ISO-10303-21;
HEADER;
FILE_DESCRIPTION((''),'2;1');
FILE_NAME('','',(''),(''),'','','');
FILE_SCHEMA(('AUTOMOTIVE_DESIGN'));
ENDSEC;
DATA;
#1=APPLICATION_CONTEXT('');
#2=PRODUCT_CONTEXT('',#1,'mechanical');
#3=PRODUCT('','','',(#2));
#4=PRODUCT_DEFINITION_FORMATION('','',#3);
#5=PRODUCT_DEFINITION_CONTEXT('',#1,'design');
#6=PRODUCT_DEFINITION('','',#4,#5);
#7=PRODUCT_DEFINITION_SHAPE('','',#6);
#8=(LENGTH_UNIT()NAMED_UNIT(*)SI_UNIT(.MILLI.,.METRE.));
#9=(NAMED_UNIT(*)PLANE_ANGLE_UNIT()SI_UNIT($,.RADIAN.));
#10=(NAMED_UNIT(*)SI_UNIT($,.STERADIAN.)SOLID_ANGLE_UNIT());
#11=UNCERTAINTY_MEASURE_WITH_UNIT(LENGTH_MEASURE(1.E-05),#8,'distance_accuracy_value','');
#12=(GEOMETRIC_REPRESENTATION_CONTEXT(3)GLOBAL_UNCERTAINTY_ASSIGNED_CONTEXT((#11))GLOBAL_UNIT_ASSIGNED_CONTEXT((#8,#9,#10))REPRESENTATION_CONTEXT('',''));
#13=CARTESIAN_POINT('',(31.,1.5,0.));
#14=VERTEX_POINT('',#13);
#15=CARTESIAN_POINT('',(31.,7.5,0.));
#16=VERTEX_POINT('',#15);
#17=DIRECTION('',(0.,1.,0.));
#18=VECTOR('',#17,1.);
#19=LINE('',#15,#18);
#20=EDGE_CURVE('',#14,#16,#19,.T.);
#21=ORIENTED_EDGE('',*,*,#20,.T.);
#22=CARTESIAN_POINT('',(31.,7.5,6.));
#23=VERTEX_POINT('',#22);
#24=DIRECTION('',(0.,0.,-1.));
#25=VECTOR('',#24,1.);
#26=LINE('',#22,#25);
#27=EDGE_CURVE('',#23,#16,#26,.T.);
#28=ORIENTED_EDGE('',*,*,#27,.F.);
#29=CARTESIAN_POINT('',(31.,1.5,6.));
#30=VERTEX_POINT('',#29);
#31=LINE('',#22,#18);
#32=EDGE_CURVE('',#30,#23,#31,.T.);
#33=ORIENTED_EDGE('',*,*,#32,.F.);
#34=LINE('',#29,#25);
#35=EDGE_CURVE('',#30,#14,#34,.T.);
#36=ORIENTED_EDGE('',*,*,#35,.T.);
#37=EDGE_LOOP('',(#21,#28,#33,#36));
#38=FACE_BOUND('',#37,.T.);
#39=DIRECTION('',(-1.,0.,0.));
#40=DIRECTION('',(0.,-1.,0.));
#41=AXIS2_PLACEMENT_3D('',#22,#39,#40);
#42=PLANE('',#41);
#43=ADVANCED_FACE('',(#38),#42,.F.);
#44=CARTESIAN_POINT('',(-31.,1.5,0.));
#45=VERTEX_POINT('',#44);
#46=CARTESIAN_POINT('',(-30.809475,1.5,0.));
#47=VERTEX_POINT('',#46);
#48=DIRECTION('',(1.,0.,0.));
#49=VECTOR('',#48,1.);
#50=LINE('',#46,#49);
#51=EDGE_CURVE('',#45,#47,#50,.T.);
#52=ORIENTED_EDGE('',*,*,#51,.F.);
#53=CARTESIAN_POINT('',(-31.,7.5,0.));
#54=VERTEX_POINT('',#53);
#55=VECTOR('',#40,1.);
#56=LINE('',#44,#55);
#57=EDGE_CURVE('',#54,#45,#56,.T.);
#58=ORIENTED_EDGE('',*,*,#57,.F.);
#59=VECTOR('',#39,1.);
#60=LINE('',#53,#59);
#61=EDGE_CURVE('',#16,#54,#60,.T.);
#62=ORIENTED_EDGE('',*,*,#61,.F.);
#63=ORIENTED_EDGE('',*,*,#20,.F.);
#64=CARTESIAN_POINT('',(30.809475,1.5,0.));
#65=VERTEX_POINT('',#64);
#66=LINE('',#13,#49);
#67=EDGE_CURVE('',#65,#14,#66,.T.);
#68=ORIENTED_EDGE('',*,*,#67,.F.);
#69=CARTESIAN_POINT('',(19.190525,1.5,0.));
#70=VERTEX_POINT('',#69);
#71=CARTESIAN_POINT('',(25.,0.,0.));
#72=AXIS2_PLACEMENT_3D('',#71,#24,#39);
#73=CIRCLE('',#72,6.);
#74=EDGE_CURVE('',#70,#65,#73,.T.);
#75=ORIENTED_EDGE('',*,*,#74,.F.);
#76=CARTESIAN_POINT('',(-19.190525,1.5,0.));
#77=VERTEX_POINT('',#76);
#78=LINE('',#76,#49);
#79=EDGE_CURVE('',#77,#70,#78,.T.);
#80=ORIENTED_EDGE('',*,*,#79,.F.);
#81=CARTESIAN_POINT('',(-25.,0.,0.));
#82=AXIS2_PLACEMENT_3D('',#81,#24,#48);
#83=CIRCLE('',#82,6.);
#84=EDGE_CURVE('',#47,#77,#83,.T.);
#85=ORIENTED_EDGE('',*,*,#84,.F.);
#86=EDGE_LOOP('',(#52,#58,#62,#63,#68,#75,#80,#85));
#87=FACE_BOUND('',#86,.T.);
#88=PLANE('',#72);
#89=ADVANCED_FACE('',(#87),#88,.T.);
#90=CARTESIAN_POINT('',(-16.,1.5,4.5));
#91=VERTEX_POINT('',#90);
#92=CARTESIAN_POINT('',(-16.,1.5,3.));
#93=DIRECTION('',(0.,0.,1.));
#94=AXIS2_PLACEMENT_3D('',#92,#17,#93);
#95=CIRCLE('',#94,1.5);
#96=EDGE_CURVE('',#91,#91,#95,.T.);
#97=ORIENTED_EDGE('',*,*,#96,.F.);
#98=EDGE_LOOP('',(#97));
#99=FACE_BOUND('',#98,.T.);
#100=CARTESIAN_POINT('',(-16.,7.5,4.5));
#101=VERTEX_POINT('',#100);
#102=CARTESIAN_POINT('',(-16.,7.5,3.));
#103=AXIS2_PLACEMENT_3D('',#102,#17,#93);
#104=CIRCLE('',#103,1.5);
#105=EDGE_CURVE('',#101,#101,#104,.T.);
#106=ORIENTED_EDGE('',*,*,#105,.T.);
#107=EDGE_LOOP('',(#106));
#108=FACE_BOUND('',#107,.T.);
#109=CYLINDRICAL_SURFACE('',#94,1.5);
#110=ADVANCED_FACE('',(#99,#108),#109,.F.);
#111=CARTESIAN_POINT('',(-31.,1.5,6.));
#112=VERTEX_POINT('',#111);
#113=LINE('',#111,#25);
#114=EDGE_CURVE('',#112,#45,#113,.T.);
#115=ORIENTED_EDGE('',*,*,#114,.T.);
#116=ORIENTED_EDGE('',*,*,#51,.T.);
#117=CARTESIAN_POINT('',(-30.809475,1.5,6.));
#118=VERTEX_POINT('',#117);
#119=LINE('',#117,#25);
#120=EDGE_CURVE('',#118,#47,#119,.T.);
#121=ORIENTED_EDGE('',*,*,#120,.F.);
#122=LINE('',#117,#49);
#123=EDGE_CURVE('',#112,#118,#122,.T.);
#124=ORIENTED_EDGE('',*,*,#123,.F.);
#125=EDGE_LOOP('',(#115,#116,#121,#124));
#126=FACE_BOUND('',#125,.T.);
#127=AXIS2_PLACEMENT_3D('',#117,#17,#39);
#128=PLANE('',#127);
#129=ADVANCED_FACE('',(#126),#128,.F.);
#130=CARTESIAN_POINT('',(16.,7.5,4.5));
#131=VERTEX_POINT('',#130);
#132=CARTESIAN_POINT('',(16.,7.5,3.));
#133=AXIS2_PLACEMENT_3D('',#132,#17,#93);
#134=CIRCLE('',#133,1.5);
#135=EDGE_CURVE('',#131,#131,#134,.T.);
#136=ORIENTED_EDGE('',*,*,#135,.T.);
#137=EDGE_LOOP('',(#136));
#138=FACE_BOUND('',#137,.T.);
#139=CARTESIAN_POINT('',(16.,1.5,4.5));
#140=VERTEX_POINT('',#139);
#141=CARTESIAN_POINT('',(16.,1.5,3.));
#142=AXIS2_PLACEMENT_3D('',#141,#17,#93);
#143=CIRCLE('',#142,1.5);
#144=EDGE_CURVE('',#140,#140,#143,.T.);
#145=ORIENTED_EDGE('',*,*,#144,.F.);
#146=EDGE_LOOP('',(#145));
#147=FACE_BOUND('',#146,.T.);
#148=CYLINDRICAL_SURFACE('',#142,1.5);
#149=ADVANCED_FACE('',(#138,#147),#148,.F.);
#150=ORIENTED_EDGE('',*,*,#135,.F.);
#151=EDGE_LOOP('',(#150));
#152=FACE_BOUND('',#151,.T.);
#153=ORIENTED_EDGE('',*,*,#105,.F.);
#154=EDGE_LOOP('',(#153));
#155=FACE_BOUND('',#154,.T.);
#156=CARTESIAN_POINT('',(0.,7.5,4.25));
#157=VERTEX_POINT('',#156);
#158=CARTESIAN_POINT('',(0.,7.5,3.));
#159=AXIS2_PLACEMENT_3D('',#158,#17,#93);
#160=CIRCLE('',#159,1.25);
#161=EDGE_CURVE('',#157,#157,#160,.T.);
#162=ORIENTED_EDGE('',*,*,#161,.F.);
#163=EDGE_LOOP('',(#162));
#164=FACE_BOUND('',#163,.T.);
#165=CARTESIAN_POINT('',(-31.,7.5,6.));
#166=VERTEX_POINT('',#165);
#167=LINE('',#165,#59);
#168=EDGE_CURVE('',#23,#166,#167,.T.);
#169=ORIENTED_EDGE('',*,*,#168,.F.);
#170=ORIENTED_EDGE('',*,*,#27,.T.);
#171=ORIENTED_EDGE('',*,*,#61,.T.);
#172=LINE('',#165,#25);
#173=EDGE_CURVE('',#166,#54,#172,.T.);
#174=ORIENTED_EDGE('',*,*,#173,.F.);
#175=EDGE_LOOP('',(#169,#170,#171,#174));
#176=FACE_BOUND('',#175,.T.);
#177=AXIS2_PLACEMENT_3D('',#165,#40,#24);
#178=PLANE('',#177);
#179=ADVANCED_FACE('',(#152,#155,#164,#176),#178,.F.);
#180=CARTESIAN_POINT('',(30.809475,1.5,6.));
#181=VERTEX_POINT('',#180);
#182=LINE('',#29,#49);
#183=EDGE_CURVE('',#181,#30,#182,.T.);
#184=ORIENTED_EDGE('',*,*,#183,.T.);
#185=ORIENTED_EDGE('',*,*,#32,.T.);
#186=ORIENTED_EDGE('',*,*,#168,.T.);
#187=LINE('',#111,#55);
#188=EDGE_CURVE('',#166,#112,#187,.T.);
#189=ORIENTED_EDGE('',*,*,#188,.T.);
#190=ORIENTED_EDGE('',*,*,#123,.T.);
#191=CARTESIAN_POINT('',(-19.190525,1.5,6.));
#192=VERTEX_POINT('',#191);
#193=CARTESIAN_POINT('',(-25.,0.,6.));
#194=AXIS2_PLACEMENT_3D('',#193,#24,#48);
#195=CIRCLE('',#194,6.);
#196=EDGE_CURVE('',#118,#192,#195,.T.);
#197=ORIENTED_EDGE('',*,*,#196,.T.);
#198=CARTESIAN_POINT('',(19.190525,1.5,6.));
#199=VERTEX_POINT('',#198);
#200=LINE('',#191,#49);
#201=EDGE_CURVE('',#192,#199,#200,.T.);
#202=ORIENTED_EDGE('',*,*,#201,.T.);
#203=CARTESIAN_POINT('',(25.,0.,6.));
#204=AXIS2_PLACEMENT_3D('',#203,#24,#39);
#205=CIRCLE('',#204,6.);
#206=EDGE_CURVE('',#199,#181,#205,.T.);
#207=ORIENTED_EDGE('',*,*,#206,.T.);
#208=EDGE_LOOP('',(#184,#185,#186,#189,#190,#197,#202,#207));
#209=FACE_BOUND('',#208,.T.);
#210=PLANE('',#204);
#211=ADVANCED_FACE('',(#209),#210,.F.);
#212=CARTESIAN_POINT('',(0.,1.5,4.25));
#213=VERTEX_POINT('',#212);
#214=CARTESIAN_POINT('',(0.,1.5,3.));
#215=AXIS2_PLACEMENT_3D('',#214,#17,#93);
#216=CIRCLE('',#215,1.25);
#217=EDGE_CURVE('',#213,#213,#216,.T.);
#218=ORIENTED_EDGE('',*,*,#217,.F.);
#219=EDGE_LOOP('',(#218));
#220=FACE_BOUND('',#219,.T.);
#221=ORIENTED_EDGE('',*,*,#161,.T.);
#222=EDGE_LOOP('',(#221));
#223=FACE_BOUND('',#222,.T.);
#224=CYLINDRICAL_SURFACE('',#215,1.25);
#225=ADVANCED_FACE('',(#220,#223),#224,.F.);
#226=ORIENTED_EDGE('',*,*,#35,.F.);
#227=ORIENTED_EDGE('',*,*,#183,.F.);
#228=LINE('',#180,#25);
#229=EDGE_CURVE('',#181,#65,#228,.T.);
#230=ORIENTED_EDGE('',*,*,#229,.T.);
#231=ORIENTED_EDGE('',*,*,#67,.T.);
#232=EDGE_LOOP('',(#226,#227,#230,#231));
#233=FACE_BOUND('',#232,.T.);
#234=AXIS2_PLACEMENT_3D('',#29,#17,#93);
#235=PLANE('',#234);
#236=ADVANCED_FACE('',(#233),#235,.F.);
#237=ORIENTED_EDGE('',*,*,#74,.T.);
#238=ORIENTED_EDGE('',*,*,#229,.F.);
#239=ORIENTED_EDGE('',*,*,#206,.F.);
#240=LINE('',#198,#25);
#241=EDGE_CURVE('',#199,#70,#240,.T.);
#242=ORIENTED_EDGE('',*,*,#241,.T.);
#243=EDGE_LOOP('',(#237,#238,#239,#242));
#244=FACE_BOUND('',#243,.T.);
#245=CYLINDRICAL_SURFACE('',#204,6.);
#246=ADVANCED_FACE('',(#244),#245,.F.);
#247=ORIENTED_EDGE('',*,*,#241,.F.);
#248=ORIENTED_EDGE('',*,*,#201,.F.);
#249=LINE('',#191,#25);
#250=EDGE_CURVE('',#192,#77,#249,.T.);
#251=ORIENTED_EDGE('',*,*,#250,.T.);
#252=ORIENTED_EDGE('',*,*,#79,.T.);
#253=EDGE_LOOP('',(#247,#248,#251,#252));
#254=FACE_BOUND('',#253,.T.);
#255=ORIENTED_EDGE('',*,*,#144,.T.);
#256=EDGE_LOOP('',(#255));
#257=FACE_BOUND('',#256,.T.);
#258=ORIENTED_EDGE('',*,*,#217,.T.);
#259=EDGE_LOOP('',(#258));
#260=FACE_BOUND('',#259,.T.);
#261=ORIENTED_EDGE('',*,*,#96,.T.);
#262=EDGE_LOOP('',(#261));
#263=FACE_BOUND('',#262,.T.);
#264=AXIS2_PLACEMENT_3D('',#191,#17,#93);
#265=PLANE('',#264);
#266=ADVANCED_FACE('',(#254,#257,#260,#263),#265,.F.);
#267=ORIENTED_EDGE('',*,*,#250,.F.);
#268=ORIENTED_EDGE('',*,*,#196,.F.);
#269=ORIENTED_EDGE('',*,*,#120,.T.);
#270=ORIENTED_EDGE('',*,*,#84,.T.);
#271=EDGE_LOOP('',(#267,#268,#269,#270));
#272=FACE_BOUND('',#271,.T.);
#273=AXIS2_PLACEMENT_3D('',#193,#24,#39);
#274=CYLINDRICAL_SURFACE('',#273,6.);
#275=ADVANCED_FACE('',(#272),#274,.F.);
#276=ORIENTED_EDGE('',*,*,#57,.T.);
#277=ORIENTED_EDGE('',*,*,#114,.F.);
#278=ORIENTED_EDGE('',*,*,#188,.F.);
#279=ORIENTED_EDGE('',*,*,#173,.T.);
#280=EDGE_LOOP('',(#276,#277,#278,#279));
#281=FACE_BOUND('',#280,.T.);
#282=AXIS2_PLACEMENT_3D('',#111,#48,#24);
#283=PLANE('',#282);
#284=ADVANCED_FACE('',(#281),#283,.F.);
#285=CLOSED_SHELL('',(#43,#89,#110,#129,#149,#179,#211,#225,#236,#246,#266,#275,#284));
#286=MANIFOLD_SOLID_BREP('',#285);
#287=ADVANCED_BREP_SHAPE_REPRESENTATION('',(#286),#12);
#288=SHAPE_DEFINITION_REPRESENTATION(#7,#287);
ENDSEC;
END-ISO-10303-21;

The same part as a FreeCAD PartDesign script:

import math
import FreeCAD as App
import Part
import Sketcher

V = App.Vector
Q = App.Units.Quantity

doc = App.newDocument("Part")
params = doc.addObject("Spreadsheet::Sheet", "Params")
for row, (alias, value) in enumerate([
    ("sketch1_radius", "6 mm"),
    ("sketch1_width", "62 mm"),
    ("sketch1_height", "6 mm"),
    ("pad1_length", "6 mm"),
    ("sketch2_diameter", "3 mm"),
    ("sketch2_diameter2", "2.5 mm"),
    ("pocket1_length", "6 mm"),
], start=1):
    params.set(f"A{row}", alias)
    params.set(f"B{row}", "=" + value)
    params.setAlias(f"B{row}", alias)

body = doc.addObject("PartDesign::Body", "Body")

sketch1 = body.newObject("Sketcher::SketchObject", "Sketch")
sketch1.AttachmentSupport = (doc.getObject("XY_Plane"), [""])
sketch1.MapMode = "FlatFace"
sketch1.addGeometry(Part.LineSegment(V(-31, 7.5, 0), V(-31, 1.5, 0)), False)
sketch1.addGeometry(Part.LineSegment(V(-31, 1.5, 0), V(-30.81, 1.5, 0)), False)
sketch1.addGeometry(Part.ArcOfCircle(Part.Circle(V(-25, 0, 0), V(0, 0, 1), 6), math.radians(14), math.radians(166)), False)
sketch1.addGeometry(Part.LineSegment(V(-19.19, 1.5, 0), V(19.19, 1.5, 0)), False)
sketch1.addGeometry(Part.ArcOfCircle(Part.Circle(V(25, 0, 0), V(0, 0, 1), 6), math.radians(14), math.radians(166)), False)
sketch1.addGeometry(Part.LineSegment(V(30.81, 1.5, 0), V(31, 1.5, 0)), False)
sketch1.addGeometry(Part.LineSegment(V(31, 1.5, 0), V(31, 7.5, 0)), False)
sketch1.addGeometry(Part.LineSegment(V(31, 7.5, 0), V(-31, 7.5, 0)), False)
sketch1.addConstraint(Sketcher.Constraint("Coincident", 0, 2, 1, 1))
sketch1.addConstraint(Sketcher.Constraint("Coincident", 1, 2, 2, 2))
sketch1.addConstraint(Sketcher.Constraint("Coincident", 2, 1, 3, 1))
sketch1.addConstraint(Sketcher.Constraint("Coincident", 3, 2, 4, 2))
sketch1.addConstraint(Sketcher.Constraint("Coincident", 4, 1, 5, 1))
sketch1.addConstraint(Sketcher.Constraint("Coincident", 5, 2, 6, 1))
sketch1.addConstraint(Sketcher.Constraint("Coincident", 6, 2, 7, 1))
sketch1.addConstraint(Sketcher.Constraint("Coincident", 7, 2, 0, 1))
sketch1.addConstraint(Sketcher.Constraint("Vertical", 0))
sketch1.addConstraint(Sketcher.Constraint("Horizontal", 1))
sketch1.addConstraint(Sketcher.Constraint("Horizontal", 3))
sketch1.addConstraint(Sketcher.Constraint("Horizontal", 5))
sketch1.addConstraint(Sketcher.Constraint("Vertical", 6))
sketch1.addConstraint(Sketcher.Constraint("Horizontal", 7))
sketch1.addConstraint(Sketcher.Constraint("Equal", 2, 4))
sketch1.addConstraint(Sketcher.Constraint("Symmetric", 2, 3, 4, 3, -1, 1))
sketch1.addConstraint(Sketcher.Constraint("Symmetric", 1, 2, 4, 1, -2))
sketch1.addConstraint(Sketcher.Constraint("Horizontal", 1, 2, 2, 1))
sketch1.addConstraint(Sketcher.Constraint("Equal", 1, 5))
sketch1.addConstraint(Sketcher.Constraint("Radius", 2, Q("6 mm")))
sketch1.addConstraint(Sketcher.Constraint("DistanceX", 7, 2, 7, 1, Q("62 mm")))
sketch1.addConstraint(Sketcher.Constraint("DistanceY", 0, 2, 0, 1, Q("6 mm")))
sketch1.addConstraint(Sketcher.Constraint("DistanceX", 2, 3, -1, 1, Q("25 mm")))
sketch1.addConstraint(Sketcher.Constraint("DistanceY", -1, 1, 0, 2, Q("1.5 mm")))
sketch1.setExpression("Constraints[19]", "Params.sketch1_radius")
sketch1.setExpression("Constraints[20]", "Params.sketch1_width")
sketch1.setExpression("Constraints[21]", "Params.sketch1_height")
pad1 = body.newObject("PartDesign::Pad", "Pad")
pad1.Profile = sketch1
pad1.setExpression("Length", "Params.pad1_length")

sketch2 = body.newObject("Sketcher::SketchObject", "Sketch001")
sketch2.AttachmentSupport = (doc.getObject("XZ_Plane"), [""])
sketch2.MapMode = "FlatFace"
sketch2.AttachmentOffset = App.Placement(V(0, 0, -7.5), App.Rotation())
sketch2.addGeometry(Part.Circle(V(-16, 3, 0), V(0, 0, 1), 1.5), False)
sketch2.addGeometry(Part.Circle(V(16, 3, 0), V(0, 0, 1), 1.5), False)
sketch2.addGeometry(Part.Circle(V(0, 3, 0), V(0, 0, 1), 1.2), False)
sketch2.addConstraint(Sketcher.Constraint("Equal", 0, 1))
sketch2.addConstraint(Sketcher.Constraint("Symmetric", 0, 3, 1, 3, -2))
sketch2.addConstraint(Sketcher.Constraint("PointOnObject", 2, 3, -2))
sketch2.addConstraint(Sketcher.Constraint("Horizontal", 1, 3, 2, 3))
sketch2.addConstraint(Sketcher.Constraint("Diameter", 0, Q("3 mm")))
sketch2.addConstraint(Sketcher.Constraint("Diameter", 2, Q("2.5 mm")))
sketch2.addConstraint(Sketcher.Constraint("DistanceX", 0, 3, -1, 1, Q("16 mm")))
sketch2.addConstraint(Sketcher.Constraint("DistanceY", -1, 1, 0, 3, Q("3 mm")))
sketch2.setExpression("Constraints[4]", "Params.sketch2_diameter")
sketch2.setExpression("Constraints[5]", "Params.sketch2_diameter2")
pocket1 = body.newObject("PartDesign::Pocket", "Pocket")
pocket1.Profile = sketch2
pocket1.setExpression("Length", "Params.pocket1_length")
pocket1.Reversed = True

doc.recompute()
